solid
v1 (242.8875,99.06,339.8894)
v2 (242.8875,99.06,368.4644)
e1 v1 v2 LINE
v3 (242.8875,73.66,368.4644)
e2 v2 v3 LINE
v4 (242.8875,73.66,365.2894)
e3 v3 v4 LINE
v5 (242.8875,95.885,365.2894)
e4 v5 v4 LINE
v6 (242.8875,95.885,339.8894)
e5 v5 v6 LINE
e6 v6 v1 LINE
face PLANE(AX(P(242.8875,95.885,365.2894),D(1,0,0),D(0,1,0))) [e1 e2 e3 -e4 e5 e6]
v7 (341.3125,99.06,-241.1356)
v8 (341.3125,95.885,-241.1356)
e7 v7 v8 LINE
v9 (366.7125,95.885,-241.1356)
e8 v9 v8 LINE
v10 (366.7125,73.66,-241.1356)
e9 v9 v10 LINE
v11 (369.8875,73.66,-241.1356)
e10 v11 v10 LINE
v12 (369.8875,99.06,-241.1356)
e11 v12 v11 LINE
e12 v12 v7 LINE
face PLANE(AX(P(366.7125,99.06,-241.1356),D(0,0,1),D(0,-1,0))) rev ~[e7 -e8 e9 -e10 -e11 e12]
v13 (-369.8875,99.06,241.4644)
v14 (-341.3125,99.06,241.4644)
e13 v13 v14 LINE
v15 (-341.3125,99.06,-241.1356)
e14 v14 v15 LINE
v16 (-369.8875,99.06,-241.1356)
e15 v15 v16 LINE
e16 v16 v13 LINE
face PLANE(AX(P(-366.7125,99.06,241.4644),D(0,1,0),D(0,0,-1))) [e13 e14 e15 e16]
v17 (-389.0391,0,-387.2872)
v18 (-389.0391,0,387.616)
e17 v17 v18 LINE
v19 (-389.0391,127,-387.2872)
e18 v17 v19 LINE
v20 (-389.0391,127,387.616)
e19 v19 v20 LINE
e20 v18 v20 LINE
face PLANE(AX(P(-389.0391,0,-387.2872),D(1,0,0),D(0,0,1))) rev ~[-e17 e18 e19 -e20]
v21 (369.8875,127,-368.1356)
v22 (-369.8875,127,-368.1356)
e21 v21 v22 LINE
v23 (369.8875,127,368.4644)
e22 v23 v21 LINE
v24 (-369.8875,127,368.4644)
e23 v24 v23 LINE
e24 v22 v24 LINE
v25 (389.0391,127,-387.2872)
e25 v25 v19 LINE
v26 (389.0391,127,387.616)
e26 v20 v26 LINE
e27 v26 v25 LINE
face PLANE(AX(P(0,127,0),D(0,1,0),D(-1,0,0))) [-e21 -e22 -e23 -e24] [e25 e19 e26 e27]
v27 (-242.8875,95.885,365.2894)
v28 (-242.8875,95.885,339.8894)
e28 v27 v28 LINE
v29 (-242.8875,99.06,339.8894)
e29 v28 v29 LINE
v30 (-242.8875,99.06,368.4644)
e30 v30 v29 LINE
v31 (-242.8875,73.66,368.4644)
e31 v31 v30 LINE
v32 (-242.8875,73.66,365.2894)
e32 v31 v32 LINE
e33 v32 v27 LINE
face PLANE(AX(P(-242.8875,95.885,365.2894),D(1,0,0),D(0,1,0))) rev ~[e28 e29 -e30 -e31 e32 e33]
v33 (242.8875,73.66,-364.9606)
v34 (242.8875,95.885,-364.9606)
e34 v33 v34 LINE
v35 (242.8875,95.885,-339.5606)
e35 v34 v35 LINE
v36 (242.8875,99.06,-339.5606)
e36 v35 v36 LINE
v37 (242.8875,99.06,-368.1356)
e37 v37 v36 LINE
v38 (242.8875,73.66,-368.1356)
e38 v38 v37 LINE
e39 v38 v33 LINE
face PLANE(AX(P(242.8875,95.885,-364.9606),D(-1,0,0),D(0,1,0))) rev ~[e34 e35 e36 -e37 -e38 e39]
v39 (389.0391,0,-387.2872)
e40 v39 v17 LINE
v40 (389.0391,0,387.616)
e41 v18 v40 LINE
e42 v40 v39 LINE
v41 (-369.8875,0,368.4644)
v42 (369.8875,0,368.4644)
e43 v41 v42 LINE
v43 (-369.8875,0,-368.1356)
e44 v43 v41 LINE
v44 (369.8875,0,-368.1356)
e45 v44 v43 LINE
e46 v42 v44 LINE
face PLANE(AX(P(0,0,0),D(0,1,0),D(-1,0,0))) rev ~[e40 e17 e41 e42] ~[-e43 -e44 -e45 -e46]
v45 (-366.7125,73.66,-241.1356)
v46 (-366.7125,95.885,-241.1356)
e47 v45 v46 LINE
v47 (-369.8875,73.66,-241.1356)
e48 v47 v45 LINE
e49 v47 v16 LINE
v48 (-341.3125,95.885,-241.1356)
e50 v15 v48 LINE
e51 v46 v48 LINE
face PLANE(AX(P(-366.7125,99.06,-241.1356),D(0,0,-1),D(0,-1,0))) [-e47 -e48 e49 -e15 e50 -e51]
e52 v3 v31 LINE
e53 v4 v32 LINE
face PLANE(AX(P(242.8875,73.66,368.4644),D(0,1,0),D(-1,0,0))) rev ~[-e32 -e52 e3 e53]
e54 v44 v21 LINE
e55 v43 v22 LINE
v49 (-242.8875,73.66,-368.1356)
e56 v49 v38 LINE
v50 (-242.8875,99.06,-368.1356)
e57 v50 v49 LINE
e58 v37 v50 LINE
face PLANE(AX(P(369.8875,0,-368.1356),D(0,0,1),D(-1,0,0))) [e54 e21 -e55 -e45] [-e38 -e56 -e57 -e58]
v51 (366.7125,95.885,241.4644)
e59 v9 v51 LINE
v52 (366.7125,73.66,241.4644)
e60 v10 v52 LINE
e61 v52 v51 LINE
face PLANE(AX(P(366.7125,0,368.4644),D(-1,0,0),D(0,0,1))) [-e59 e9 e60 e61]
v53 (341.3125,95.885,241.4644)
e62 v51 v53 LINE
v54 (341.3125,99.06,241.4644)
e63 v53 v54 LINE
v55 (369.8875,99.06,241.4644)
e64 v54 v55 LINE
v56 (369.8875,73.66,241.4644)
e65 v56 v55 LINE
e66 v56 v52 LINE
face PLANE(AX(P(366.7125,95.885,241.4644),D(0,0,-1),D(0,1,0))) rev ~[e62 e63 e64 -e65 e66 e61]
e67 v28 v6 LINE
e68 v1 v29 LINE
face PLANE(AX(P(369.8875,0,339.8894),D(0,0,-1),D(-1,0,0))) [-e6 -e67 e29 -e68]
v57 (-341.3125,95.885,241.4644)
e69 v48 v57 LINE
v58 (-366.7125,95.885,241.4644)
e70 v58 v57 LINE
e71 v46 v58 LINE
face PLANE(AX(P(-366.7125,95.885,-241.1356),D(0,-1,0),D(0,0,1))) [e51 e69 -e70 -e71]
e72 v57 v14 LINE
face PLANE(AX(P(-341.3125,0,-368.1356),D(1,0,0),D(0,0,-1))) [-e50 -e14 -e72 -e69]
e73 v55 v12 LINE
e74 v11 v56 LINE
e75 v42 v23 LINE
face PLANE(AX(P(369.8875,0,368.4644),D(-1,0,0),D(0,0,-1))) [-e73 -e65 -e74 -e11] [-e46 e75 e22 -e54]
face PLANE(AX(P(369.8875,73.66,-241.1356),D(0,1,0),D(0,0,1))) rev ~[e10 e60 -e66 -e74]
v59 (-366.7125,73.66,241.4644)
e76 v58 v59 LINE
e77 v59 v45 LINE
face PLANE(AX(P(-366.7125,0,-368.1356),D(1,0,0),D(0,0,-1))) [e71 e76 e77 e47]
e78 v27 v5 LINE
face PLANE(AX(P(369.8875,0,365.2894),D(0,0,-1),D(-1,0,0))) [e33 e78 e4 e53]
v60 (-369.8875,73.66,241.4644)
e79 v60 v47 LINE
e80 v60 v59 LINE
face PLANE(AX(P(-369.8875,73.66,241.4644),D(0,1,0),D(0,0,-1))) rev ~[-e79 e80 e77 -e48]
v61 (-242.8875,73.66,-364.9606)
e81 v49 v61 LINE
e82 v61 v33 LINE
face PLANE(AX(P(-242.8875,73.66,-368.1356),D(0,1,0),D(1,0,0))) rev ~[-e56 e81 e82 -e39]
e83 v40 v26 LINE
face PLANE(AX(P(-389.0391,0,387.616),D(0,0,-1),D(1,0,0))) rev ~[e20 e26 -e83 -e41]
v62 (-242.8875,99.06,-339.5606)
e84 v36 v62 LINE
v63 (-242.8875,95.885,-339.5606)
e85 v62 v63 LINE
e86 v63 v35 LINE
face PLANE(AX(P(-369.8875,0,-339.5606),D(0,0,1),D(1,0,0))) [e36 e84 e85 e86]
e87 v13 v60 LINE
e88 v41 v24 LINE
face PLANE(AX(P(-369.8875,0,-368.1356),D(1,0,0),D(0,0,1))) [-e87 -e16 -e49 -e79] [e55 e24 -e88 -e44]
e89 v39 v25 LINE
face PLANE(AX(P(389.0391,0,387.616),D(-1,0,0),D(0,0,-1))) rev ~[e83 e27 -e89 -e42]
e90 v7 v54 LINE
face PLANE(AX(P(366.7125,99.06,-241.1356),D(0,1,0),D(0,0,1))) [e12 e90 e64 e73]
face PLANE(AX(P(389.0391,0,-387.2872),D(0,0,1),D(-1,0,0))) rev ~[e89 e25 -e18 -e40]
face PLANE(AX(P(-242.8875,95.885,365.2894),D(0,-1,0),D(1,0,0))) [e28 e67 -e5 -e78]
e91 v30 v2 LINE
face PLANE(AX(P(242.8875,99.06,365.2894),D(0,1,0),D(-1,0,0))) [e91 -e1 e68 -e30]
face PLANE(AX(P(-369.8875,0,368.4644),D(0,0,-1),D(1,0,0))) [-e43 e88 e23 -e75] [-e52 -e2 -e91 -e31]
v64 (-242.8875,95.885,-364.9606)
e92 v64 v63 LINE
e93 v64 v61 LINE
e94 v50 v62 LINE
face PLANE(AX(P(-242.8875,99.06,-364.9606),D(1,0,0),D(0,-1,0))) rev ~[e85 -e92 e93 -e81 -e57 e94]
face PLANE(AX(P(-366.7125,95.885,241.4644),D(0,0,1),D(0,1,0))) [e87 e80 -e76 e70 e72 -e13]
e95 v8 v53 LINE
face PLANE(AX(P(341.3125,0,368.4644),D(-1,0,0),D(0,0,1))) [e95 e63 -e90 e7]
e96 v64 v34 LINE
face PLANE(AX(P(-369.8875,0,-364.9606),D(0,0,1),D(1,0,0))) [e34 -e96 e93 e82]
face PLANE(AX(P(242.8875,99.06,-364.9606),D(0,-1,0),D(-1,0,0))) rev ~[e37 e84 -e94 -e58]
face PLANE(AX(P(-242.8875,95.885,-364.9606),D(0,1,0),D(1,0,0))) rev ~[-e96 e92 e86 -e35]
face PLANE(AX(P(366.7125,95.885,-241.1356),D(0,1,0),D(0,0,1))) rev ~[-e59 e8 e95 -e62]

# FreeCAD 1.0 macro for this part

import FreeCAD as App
import Part
import Sketcher

V = App.Vector
Q = App.Units.Quantity

doc = App.newDocument("Part")
body = doc.addObject("PartDesign::Body", "Body")

sketch1 = body.newObject("Sketcher::SketchObject", "Sketch")
sketch1.AttachmentSupport = (doc.getObject("XZ_Plane"), [""])
sketch1.MapMode = "FlatFace"
sketch1.addGeometry([
    Part.LineSegment(V(389, 388, 0), V(389, -387, 0)),
    Part.LineSegment(V(389, -387, 0), V(-389, -387, 0)),
    Part.LineSegment(V(-389, -387, 0), V(-389, 388, 0)),
    Part.LineSegment(V(-389, 388, 0), V(389, 388, 0)),
    Part.LineSegment(V(-370, -368, 0), V(370, -368, 0)),
    Part.LineSegment(V(370, -368, 0), V(370, 368, 0)),
    Part.LineSegment(V(370, 368, 0), V(-370, 368, 0)),
    Part.LineSegment(V(-370, 368, 0), V(-370, -368, 0)),
], False)
sketch1.addConstraint([
    Sketcher.Constraint("Coincident", 0, 2, 1, 1),
    Sketcher.Constraint("Coincident", 1, 2, 2, 1),
    Sketcher.Constraint("Coincident", 2, 2, 3, 1),
    Sketcher.Constraint("Coincident", 3, 2, 0, 1),
    Sketcher.Constraint("Coincident", 4, 2, 5, 1),
    Sketcher.Constraint("Coincident", 5, 2, 6, 1),
    Sketcher.Constraint("Coincident", 6, 2, 7, 1),
    Sketcher.Constraint("Coincident", 7, 2, 4, 1),
    Sketcher.Constraint("Vertical", 0),
    Sketcher.Constraint("Horizontal", 1),
    Sketcher.Constraint("Vertical", 2),
    Sketcher.Constraint("Horizontal", 3),
    Sketcher.Constraint("Horizontal", 4),
    Sketcher.Constraint("Vertical", 5),
    Sketcher.Constraint("Horizontal", 6),
    Sketcher.Constraint("Vertical", 7),
    Sketcher.Constraint("DistanceY", 5, 1, 5, 2, Q("29 in")),
    Sketcher.Constraint("DistanceX", 4, 1, 4, 2, Q("29.125 in")),
    Sketcher.Constraint("DistanceX", 4, 2, 0, 2, Q("0.754 in")),
    Sketcher.Constraint("DistanceY", 0, 2, 4, 2, Q("0.754 in")),
    Sketcher.Constraint("DistanceY", 5, 2, 3, 2, Q("0.754 in")),
    Sketcher.Constraint("DistanceX", 2, 2, 6, 2, Q("0.754 in")),
    Sketcher.Constraint("DistanceX", -1, 1, 4, 2, Q("14.5625 in")),
    Sketcher.Constraint("DistanceY", 0, 2, -1, 1, Q("387.2872 mm")),
])
pad1 = body.newObject("PartDesign::Pad", "Pad")
pad1.Profile = sketch1
pad1.Length = Q("5 in")
pad1.Reversed = True

sketch2 = body.newObject("Sketcher::SketchObject", "Sketch001")
sketch2.AttachmentSupport = (doc.getObject("XY_Plane"), [""])
sketch2.MapMode = "FlatFace"
sketch2.AttachmentOffset = App.Placement(V(0, 0, 368.4644), App.Rotation())
sketch2.addGeometry([
    Part.LineSegment(V(243, 99, 0), V(243, 74, 0)),
    Part.LineSegment(V(243, 74, 0), V(-243, 74, 0)),
    Part.LineSegment(V(-243, 74, 0), V(-243, 99, 0)),
    Part.LineSegment(V(-243, 99, 0), V(243, 99, 0)),
], False)
sketch2.addConstraint([
    Sketcher.Constraint("Coincident", 0, 2, 1, 1),
    Sketcher.Constraint("Coincident", 1, 2, 2, 1),
    Sketcher.Constraint("Coincident", 2, 2, 3, 1),
    Sketcher.Constraint("Coincident", 3, 2, 0, 1),
    Sketcher.Constraint("Vertical", 0),
    Sketcher.Constraint("Horizontal", 1),
    Sketcher.Constraint("Vertical", 2),
    Sketcher.Constraint("Horizontal", 3),
    Sketcher.Constraint("DistanceY", 0, 2, 0, 1, Q("1 in")),
    Sketcher.Constraint("DistanceY", -1, 1, 0, 2, Q("2.9 in")),
    Sketcher.Constraint("DistanceX", 1, 2, 1, 1, Q("19.125 in")),
    Sketcher.Constraint("DistanceX", -1, 1, 0, 2, Q("9.5625 in")),
])
pad2 = body.newObject("PartDesign::Pad", "Pad001")
pad2.Profile = sketch2
pad2.Length = Q("0.125 in")
pad2.Reversed = True

sketch3 = body.newObject("Sketcher::SketchObject", "Sketch002")
sketch3.AttachmentSupport = (doc.getObject("YZ_Plane"), [""])
sketch3.MapMode = "FlatFace"
sketch3.AttachmentOffset = App.Placement(V(0, 0, -14.5625 * 25.4), App.Rotation())
sketch3.addGeometry([
    Part.LineSegment(V(99, 241, 0), V(74, 241, 0)),
    Part.LineSegment(V(74, 241, 0), V(74, -241, 0)),
    Part.LineSegment(V(74, -241, 0), V(99, -241, 0)),
    Part.LineSegment(V(99, -241, 0), V(99, 241, 0)),
], False)
sketch3.addConstraint([
    Sketcher.Constraint("Coincident", 0, 2, 1, 1),
    Sketcher.Constraint("Coincident", 1, 2, 2, 1),
    Sketcher.Constraint("Coincident", 2, 2, 3, 1),
    Sketcher.Constraint("Coincident", 3, 2, 0, 1),
    Sketcher.Constraint("Horizontal", 0),
    Sketcher.Constraint("Vertical", 1),
    Sketcher.Constraint("Horizontal", 2),
    Sketcher.Constraint("Vertical", 3),
    Sketcher.Constraint("DistanceX", 0, 2, 0, 1, Q("1 in")),
    Sketcher.Constraint("DistanceX", -1, 1, 0, 2, Q("2.9 in")),
    Sketcher.Constraint("DistanceY", 1, 2, 1, 1, Q("19 in")),
    Sketcher.Constraint("DistanceY", -1, 1, 0, 2, Q("241.4644 mm")),
])
pad3 = body.newObject("PartDesign::Pad", "Pad002")
pad3.Profile = sketch3
pad3.Length = Q("0.125 in")

sketch4 = body.newObject("Sketcher::SketchObject", "Sketch003")
sketch4.AttachmentSupport = (doc.getObject("YZ_Plane"), [""])
sketch4.MapMode = "FlatFace"
sketch4.AttachmentOffset = App.Placement(V(0, 0, 14.5625 * 25.4), App.Rotation())
sketch4.addGeometry([
    Part.LineSegment(V(99, -241, 0), V(74, -241, 0)),
    Part.LineSegment(V(74, -241, 0), V(74, 241, 0)),
    Part.LineSegment(V(74, 241, 0), V(99, 241, 0)),
    Part.LineSegment(V(99, 241, 0), V(99, -241, 0)),
], False)
sketch4.addConstraint([
    Sketcher.Constraint("Coincident", 0, 2, 1, 1),
    Sketcher.Constraint("Coincident", 1, 2, 2, 1),
    Sketcher.Constraint("Coincident", 2, 2, 3, 1),
    Sketcher.Constraint("Coincident", 3, 2, 0, 1),
    Sketcher.Constraint("Horizontal", 0),
    Sketcher.Constraint("Vertical", 1),
    Sketcher.Constraint("Horizontal", 2),
    Sketcher.Constraint("Vertical", 3),
    Sketcher.Constraint("DistanceX", 0, 2, 0, 1, Q("1 in")),
    Sketcher.Constraint("DistanceX", -1, 1, 0, 2, Q("2.9 in")),
    Sketcher.Constraint("DistanceY", 1, 1, 1, 2, Q("19 in")),
    Sketcher.Constraint("DistanceY", 0, 2, -1, 1, Q("241.1356 mm")),
])
pad4 = body.newObject("PartDesign::Pad", "Pad003")
pad4.Profile = sketch4
pad4.Length = Q("0.125 in")
pad4.Reversed = True

sketch5 = body.newObject("Sketcher::SketchObject", "Sketch004")
sketch5.AttachmentSupport = (doc.getObject("XY_Plane"), [""])
sketch5.MapMode = "FlatFace"
sketch5.AttachmentOffset = App.Placement(V(0, 0, -368.1356), App.Rotation())
sketch5.addGeometry([
    Part.LineSegment(V(-243, 99, 0), V(-243, 74, 0)),
    Part.LineSegment(V(-243, 74, 0), V(243, 74, 0)),
    Part.LineSegment(V(243, 74, 0), V(243, 99, 0)),
    Part.LineSegment(V(243, 99, 0), V(-243, 99, 0)),
], False)
sketch5.addConstraint([
    Sketcher.Constraint("Coincident", 0, 2, 1, 1),
    Sketcher.Constraint("Coincident", 1, 2, 2, 1),
    Sketcher.Constraint("Coincident", 2, 2, 3, 1),
    Sketcher.Constraint("Coincident", 3, 2, 0, 1),
    Sketcher.Constraint("Vertical", 0),
    Sketcher.Constraint("Horizontal", 1),
    Sketcher.Constraint("Vertical", 2),
    Sketcher.Constraint("Horizontal", 3),
    Sketcher.Constraint("DistanceY", 0, 2, 0, 1, Q("1 in")),
    Sketcher.Constraint("DistanceY", -1, 1, 0, 2, Q("2.9 in")),
    Sketcher.Constraint("DistanceX", 1, 1, 1, 2, Q("19.125 in")),
    Sketcher.Constraint("DistanceX", 0, 2, -1, 1, Q("9.5625 in")),
])
pad5 = body.newObject("PartDesign::Pad", "Pad004")
pad5.Profile = sketch5
pad5.Length = Q("0.125 in")

sketch6 = body.newObject("Sketcher::SketchObject", "Sketch005")
sketch6.AttachmentSupport = (doc.getObject("XY_Plane"), [""])
sketch6.MapMode = "FlatFace"
sketch6.AttachmentOffset = App.Placement(V(0, 0, -364.9606), App.Rotation())
sketch6.addGeometry([
    Part.LineSegment(V(242.9, 95.9, 0), V(242.9, 99.1, 0)),
    Part.LineSegment(V(242.9, 99.1, 0), V(-242.9, 99.1, 0)),
    Part.LineSegment(V(-242.9, 99.1, 0), V(-242.9, 95.9, 0)),
    Part.LineSegment(V(-242.9, 95.9, 0), V(242.9, 95.9, 0)),
], False)
sketch6.addConstraint([
    Sketcher.Constraint("Coincident", 0, 2, 1, 1),
    Sketcher.Constraint("Coincident", 1, 2, 2, 1),
    Sketcher.Constraint("Coincident", 2, 2, 3, 1),
    Sketcher.Constraint("Coincident", 3, 2, 0, 1),
    Sketcher.Constraint("Vertical", 0),
    Sketcher.Constraint("Horizontal", 1),
    Sketcher.Constraint("Vertical", 2),
    Sketcher.Constraint("Horizontal", 3),
    Sketcher.Constraint("DistanceY", 0, 1, 0, 2, Q("0.125 in")),
    Sketcher.Constraint("DistanceY", -1, 1, 0, 2, Q("3.9 in")),
    Sketcher.Constraint("DistanceX", 1, 2, 1, 1, Q("19.125 in")),
    Sketcher.Constraint("DistanceX", -1, 1, 0, 2, Q("9.5625 in")),
])
pad6 = body.newObject("PartDesign::Pad", "Pad005")
pad6.Profile = sketch6
pad6.Length = Q("1 in")

sketch7 = body.newObject("Sketcher::SketchObject", "Sketch006")
sketch7.AttachmentSupport = (doc.getObject("XY_Plane"), [""])
sketch7.MapMode = "FlatFace"
sketch7.AttachmentOffset = App.Placement(V(0, 0, 365.2894), App.Rotation())
sketch7.addGeometry([
    Part.LineSegment(V(242.9, 95.9, 0), V(-242.9, 95.9, 0)),
    Part.LineSegment(V(-242.9, 95.9, 0), V(-242.9, 99.1, 0)),
    Part.LineSegment(V(-242.9, 99.1, 0), V(242.9, 99.1, 0)),
    Part.LineSegment(V(242.9, 99.1, 0), V(242.9, 95.9, 0)),
], False)
sketch7.addConstraint([
    Sketcher.Constraint("Coincident", 0, 2, 1, 1),
    Sketcher.Constraint("Coincident", 1, 2, 2, 1),
    Sketcher.Constraint("Coincident", 2, 2, 3, 1),
    Sketcher.Constraint("Coincident", 3, 2, 0, 1),
    Sketcher.Constraint("Horizontal", 0),
    Sketcher.Constraint("Vertical", 1),
    Sketcher.Constraint("Horizontal", 2),
    Sketcher.Constraint("Vertical", 3),
    Sketcher.Constraint("DistanceY", 1, 1, 1, 2, Q("0.125 in")),
    Sketcher.Constraint("DistanceY", -1, 1, 1, 2, Q("3.9 in")),
    Sketcher.Constraint("DistanceX", 0, 2, 0, 1, Q("19.125 in")),
    Sketcher.Constraint("DistanceX", 0, 2, -1, 1, Q("9.5625 in")),
])
pad7 = body.newObject("PartDesign::Pad", "Pad006")
pad7.Profile = sketch7
pad7.Length = Q("1 in")
pad7.Reversed = True

sketch8 = body.newObject("Sketcher::SketchObject", "Sketch007")
sketch8.AttachmentSupport = (doc.getObject("YZ_Plane"), [""])
sketch8.MapMode = "FlatFace"
sketch8.AttachmentOffset = App.Placement(V(0, 0, 14.4375 * 25.4), App.Rotation())
sketch8.addGeometry([
    Part.LineSegment(V(99.1, 241.5, 0), V(99.1, -241.1, 0)),
    Part.LineSegment(V(99.1, -241.1, 0), V(95.9, -241.1, 0)),
    Part.LineSegment(V(95.9, -241.1, 0), V(95.9, 241.5, 0)),
    Part.LineSegment(V(95.9, 241.5, 0), V(99.1, 241.5, 0)),
], False)
sketch8.addConstraint([
    Sketcher.Constraint("Coincident", 0, 2, 1, 1),
    Sketcher.Constraint("Coincident", 1, 2, 2, 1),
    Sketcher.Constraint("Coincident", 2, 2, 3, 1),
    Sketcher.Constraint("Coincident", 3, 2, 0, 1),
    Sketcher.Constraint("Vertical", 0),
    Sketcher.Constraint("Horizontal", 1),
    Sketcher.Constraint("Vertical", 2),
    Sketcher.Constraint("Horizontal", 3),
    Sketcher.Constraint("DistanceX", 1, 2, 1, 1, Q("0.125 in")),
    Sketcher.Constraint("DistanceY", 0, 2, 0, 1, Q("19 in")),
    Sketcher.Constraint("DistanceX", -1, 1, 0, 2, Q("3.9 in")),
    Sketcher.Constraint("DistanceY", 0, 2, -1, 1, Q("241.1356 mm")),
])
pad8 = body.newObject("PartDesign::Pad", "Pad007")
pad8.Profile = sketch8
pad8.Length = Q("1 in")
pad8.Reversed = True

sketch9 = body.newObject("Sketcher::SketchObject", "Sketch008")
sketch9.AttachmentSupport = (doc.getObject("YZ_Plane"), [""])
sketch9.MapMode = "FlatFace"
sketch9.AttachmentOffset = App.Placement(V(0, 0, -14.4375 * 25.4), App.Rotation())
sketch9.addGeometry([
    Part.LineSegment(V(99.1, -241.1, 0), V(99.1, 241.5, 0)),
    Part.LineSegment(V(99.1, 241.5, 0), V(95.9, 241.5, 0)),
    Part.LineSegment(V(95.9, 241.5, 0), V(95.9, -241.1, 0)),
    Part.LineSegment(V(95.9, -241.1, 0), V(99.1, -241.1, 0)),
], False)
sketch9.addConstraint([
    Sketcher.Constraint("Coincident", 0, 2, 1, 1),
    Sketcher.Constraint("Coincident", 1, 2, 2, 1),
    Sketcher.Constraint("Coincident", 2, 2, 3, 1),
    Sketcher.Constraint("Coincident", 3, 2, 0, 1),
    Sketcher.Constraint("Vertical", 0),
    Sketcher.Constraint("Horizontal", 1),
    Sketcher.Constraint("Vertical", 2),
    Sketcher.Constraint("Horizontal", 3),
    Sketcher.Constraint("DistanceX", 1, 2, 1, 1, Q("0.125 in")),
    Sketcher.Constraint("DistanceY", 0, 1, 0, 2, Q("19 in")),
    Sketcher.Constraint("DistanceX", -1, 1, 0, 2, Q("3.9 in")),
    Sketcher.Constraint("DistanceY", -1, 1, 0, 2, Q("241.4644 mm")),
])
pad9 = body.newObject("PartDesign::Pad", "Pad008")
pad9.Profile = sketch9
pad9.Length = Q("1 in")

doc.recompute()
